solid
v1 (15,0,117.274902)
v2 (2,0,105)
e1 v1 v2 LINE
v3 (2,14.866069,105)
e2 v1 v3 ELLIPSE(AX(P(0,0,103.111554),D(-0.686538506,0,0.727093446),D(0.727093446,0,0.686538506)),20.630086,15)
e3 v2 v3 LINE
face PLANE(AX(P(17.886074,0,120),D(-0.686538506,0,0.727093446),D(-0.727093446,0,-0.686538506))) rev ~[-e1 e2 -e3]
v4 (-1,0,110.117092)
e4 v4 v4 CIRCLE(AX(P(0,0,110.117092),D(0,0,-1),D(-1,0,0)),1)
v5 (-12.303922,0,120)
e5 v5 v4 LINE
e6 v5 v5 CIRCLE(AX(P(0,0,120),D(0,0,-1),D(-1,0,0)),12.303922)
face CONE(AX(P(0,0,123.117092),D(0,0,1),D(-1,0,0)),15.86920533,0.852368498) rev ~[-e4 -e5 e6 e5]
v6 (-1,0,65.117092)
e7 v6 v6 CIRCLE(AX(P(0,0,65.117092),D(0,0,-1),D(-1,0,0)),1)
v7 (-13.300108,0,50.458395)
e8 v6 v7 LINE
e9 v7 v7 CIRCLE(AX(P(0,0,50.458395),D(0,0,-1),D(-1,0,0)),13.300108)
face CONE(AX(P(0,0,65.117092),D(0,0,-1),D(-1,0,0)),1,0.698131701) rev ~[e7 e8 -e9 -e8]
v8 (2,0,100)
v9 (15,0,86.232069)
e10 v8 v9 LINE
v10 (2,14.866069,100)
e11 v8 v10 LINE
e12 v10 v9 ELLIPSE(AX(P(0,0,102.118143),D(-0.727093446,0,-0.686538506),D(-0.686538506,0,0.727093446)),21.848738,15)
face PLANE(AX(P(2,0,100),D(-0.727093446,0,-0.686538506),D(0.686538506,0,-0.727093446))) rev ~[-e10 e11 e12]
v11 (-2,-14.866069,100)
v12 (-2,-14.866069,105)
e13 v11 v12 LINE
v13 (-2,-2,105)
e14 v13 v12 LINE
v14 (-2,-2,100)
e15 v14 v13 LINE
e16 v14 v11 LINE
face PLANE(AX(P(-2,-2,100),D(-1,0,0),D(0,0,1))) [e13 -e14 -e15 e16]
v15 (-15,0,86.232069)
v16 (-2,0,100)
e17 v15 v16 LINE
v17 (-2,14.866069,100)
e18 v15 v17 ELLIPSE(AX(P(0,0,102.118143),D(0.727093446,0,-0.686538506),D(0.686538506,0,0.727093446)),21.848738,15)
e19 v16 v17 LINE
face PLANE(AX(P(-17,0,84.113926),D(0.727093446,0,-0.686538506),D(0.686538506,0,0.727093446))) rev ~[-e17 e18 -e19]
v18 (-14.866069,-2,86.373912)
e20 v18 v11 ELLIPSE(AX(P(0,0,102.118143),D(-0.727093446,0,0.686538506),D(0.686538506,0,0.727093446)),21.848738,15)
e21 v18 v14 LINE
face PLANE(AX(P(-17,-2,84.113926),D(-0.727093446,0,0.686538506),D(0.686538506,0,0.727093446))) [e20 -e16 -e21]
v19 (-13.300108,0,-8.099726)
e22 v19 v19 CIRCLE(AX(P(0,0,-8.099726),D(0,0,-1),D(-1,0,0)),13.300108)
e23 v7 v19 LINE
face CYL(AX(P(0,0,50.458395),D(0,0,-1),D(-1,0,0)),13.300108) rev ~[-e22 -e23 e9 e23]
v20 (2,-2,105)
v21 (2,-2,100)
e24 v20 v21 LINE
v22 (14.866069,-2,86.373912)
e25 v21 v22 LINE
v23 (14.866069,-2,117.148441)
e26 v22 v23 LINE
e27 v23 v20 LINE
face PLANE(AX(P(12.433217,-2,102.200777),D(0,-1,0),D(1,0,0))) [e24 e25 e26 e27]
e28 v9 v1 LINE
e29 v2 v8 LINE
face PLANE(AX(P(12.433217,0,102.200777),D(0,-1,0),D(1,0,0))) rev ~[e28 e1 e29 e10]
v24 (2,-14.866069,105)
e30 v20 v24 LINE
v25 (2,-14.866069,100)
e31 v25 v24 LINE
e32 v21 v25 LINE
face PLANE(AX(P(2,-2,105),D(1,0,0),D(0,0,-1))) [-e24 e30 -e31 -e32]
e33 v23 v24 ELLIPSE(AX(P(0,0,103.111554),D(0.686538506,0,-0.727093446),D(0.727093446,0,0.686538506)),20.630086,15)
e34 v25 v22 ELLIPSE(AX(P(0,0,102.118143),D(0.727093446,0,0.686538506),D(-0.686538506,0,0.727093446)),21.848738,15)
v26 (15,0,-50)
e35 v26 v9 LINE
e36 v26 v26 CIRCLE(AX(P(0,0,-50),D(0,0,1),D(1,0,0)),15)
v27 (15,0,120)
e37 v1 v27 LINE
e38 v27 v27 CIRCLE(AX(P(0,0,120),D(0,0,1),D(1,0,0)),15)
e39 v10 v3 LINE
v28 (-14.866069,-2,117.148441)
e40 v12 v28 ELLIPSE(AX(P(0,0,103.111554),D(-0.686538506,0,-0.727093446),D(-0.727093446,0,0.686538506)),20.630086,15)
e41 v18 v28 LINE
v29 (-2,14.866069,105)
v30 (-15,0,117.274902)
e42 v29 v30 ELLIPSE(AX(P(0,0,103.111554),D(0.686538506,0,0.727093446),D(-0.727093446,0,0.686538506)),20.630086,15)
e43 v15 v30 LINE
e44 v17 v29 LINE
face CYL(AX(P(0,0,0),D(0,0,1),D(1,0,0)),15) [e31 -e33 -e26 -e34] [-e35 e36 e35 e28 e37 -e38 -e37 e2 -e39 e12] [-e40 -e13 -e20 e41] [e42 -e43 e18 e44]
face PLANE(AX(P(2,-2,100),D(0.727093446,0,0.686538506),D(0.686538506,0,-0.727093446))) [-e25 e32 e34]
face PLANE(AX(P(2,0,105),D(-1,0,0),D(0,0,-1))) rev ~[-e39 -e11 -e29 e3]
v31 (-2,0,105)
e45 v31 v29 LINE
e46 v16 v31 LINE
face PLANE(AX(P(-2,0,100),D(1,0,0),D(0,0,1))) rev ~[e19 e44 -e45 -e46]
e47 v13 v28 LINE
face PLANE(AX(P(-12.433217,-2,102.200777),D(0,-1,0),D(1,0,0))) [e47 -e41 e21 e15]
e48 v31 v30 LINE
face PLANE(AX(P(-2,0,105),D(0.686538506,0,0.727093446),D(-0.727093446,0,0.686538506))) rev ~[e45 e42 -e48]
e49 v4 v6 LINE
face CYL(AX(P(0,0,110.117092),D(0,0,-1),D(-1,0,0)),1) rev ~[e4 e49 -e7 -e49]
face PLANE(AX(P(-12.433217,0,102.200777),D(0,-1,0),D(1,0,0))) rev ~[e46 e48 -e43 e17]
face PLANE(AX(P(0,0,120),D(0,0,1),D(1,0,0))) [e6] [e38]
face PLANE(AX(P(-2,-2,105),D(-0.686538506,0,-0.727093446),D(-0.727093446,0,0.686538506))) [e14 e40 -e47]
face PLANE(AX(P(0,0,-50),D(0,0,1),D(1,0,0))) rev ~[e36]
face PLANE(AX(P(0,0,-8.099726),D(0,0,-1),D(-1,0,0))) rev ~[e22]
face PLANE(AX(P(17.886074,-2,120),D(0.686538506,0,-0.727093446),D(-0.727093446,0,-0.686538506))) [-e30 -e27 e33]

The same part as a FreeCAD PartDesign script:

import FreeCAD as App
import Part
import Sketcher

V = App.Vector
Q = App.Units.Quantity

doc = App.newDocument("Part")
body = doc.addObject("PartDesign::Body", "Body")

# Sketch on XY plane
sketch1 = body.newObject("Sketcher::SketchObject", "Sketch")
sketch1.AttachmentSupport = (doc.getObject("XY_Plane"), [""])
sketch1.MapMode = "FlatFace"
sketch1.addGeometry(Part.Circle(V(0, 0, 0), V(0, 0, 1), 15), False)
sketch1.addConstraint([
    Sketcher.Constraint("Coincident", 0, 3, -1, 1),
    Sketcher.Constraint("Diameter", 0, 30.0),
])
pad1 = body.newObject("PartDesign::Pad", "Pad")
pad1.Profile = sketch1
pad1.Type = "TwoLengths"
pad1.Length = 120
pad1.Length2 = 50

# Sketch on XZ plane
sketch2 = body.newObject("Sketcher::SketchObject", "Sketch001")
sketch2.AttachmentSupport = (doc.getObject("XZ_Plane"), [""])
sketch2.MapMode = "FlatFace"
sketch2.AttachmentOffset = App.Placement(V(0, 0, 2), App.Rotation())
sketch2.addGeometry([
    Part.LineSegment(V(-17.886074, 120, 0), V(-17, 105, 0)),  # 0
    Part.LineSegment(V(-17, 105, 0), V(-17, 84.113926, 0)),  # 1
    Part.LineSegment(V(-17, 84.113926, 0), V(-2, 100, 0)),  # 2
    Part.LineSegment(V(-2, 100, 0), V(-2, 105, 0)),  # 3
    Part.LineSegment(V(-2, 105, 0), V(-17.886074, 120, 0)),  # 4
    Part.LineSegment(V(-17, 70, 0), V(-17, 84.113926, 0)),  # 5
    Part.LineSegment(V(-17, 84.113926, 0), V(-17.886074, 83.17551, 0)),  # 6
    Part.LineSegment(V(-17.886074, 83.17551, 0), V(-17, 70, 0)),  # 7
    Part.LineSegment(V(2, 100, 0), V(17, 84.113926, 0)),  # 8
    Part.LineSegment(V(17, 84.113926, 0), V(17, 105, 0)),  # 9
    Part.LineSegment(V(17, 105, 0), V(17.886074, 120, 0)),  # 10
    Part.LineSegment(V(17.886074, 120, 0), V(2, 105, 0)),  # 11
    Part.LineSegment(V(2, 105, 0), V(2, 100, 0)),  # 12
    Part.LineSegment(V(17, 70, 0), V(17.886074, 83.17551, 0)),  # 13
    Part.LineSegment(V(17.886074, 83.17551, 0), V(17, 84.113926, 0)),  # 14
    Part.LineSegment(V(17, 84.113926, 0), V(17, 70, 0)),  # 15
], False)
sketch2.addConstraint([
    Sketcher.Constraint("Coincident", 0, 2, 1, 1),
    Sketcher.Constraint("Coincident", 1, 2, 2, 1),
    Sketcher.Constraint("Coincident", 2, 2, 3, 1),
    Sketcher.Constraint("Coincident", 3, 2, 4, 1),
    Sketcher.Constraint("Coincident", 4, 2, 0, 1),
    Sketcher.Constraint("Coincident", 5, 2, 6, 1),
    Sketcher.Constraint("Coincident", 6, 2, 7, 1),
    Sketcher.Constraint("Coincident", 7, 2, 5, 1),
    Sketcher.Constraint("Coincident", 8, 2, 9, 1),
    Sketcher.Constraint("Coincident", 9, 2, 10, 1),
    Sketcher.Constraint("Coincident", 10, 2, 11, 1),
    Sketcher.Constraint("Coincident", 11, 2, 12, 1),
    Sketcher.Constraint("Coincident", 12, 2, 8, 1),
    Sketcher.Constraint("Coincident", 13, 2, 14, 1),
    Sketcher.Constraint("Coincident", 14, 2, 15, 1),
    Sketcher.Constraint("Coincident", 15, 2, 13, 1),
    Sketcher.Constraint("Vertical", 1),
    Sketcher.Constraint("Vertical", 3),
    Sketcher.Constraint("Vertical", 5),
    Sketcher.Constraint("Vertical", 9),
    Sketcher.Constraint("Vertical", 12),
    Sketcher.Constraint("Vertical", 15),
    Sketcher.Constraint("Coincident", 5, 2, 1, 2),
    Sketcher.Constraint("Coincident", 14, 2, 8, 2),
    Sketcher.Constraint("Symmetric", 1, 2, 8, 2, -2),
    Sketcher.Constraint("Symmetric", 4, 2, 10, 2, -2),
    Sketcher.Constraint("Symmetric", 3, 2, 11, 2, -2),
    Sketcher.Constraint("Symmetric", 6, 2, 13, 2, -2),
    Sketcher.Constraint("Perpendicular", 2, 4),
    Sketcher.Constraint("Perpendicular", 4, 6),
    Sketcher.Constraint("Perpendicular", 8, 11),
    Sketcher.Constraint("Horizontal", 0, 2, 3, 2),
    Sketcher.Constraint("Horizontal", 3, 2, 9, 2),
    Sketcher.Constraint("Horizontal", 7, 2, 15, 2),
    Sketcher.Constraint("Vertical", 4, 2, 6, 2),
    Sketcher.Constraint("Equal", 2, 4),
    Sketcher.Constraint("DistanceY", 3, 1, 3, 2, 5.0),
    Sketcher.Constraint("DistanceX", 0, 2, -1, 1, 17.0),
    Sketcher.Constraint("DistanceY", -1, 1, 0, 2, 105.0),
    Sketcher.Constraint("DistanceX", 2, 2, -1, 1, 2.0),
    Sketcher.Constraint("DistanceY", -1, 1, 7, 2, 70.0),
    Sketcher.Constraint("Distance", 0, 15.026148),
])
pocket1 = body.newObject("PartDesign::Pocket", "Pocket")
pocket1.Profile = sketch2
pocket1.Length = 23
pocket1.Reversed = True

# Sketch on XZ plane
sketch3 = body.newObject("Sketcher::SketchObject", "Sketch002")
sketch3.AttachmentSupport = (doc.getObject("XZ_Plane"), [""])
sketch3.MapMode = "FlatFace"
sketch3.addGeometry([
    Part.LineSegment(V(-17.886074, 120, 0), V(-17, 105, 0)),  # 0
    Part.LineSegment(V(-17, 105, 0), V(-17, 84.113926, 0)),  # 1
    Part.LineSegment(V(-17, 84.113926, 0), V(-2, 100, 0)),  # 2
    Part.LineSegment(V(-2, 100, 0), V(-2, 105, 0)),  # 3
    Part.LineSegment(V(-2, 105, 0), V(-17.886074, 120, 0)),  # 4
    Part.LineSegment(V(-17, 70, 0), V(-17, 84.113926, 0)),  # 5
    Part.LineSegment(V(-17, 84.113926, 0), V(-17.886074, 83.17551, 0)),  # 6
    Part.LineSegment(V(-17.886074, 83.17551, 0), V(-17, 70, 0)),  # 7
    Part.LineSegment(V(2, 100, 0), V(17, 84.113926, 0)),  # 8
    Part.LineSegment(V(17, 84.113926, 0), V(17, 105, 0)),  # 9
    Part.LineSegment(V(17, 105, 0), V(17.886074, 120, 0)),  # 10
    Part.LineSegment(V(17.886074, 120, 0), V(2, 105, 0)),  # 11
    Part.LineSegment(V(2, 105, 0), V(2, 100, 0)),  # 12
    Part.LineSegment(V(17, 70, 0), V(17.886074, 83.17551, 0)),  # 13
    Part.LineSegment(V(17.886074, 83.17551, 0), V(17, 84.113926, 0)),  # 14
    Part.LineSegment(V(17, 84.113926, 0), V(17, 70, 0)),  # 15
], False)
sketch3.addConstraint([
    Sketcher.Constraint("Coincident", 0, 2, 1, 1),
    Sketcher.Constraint("Coincident", 1, 2, 2, 1),
    Sketcher.Constraint("Coincident", 2, 2, 3, 1),
    Sketcher.Constraint("Coincident", 3, 2, 4, 1),
    Sketcher.Constraint("Coincident", 4, 2, 0, 1),
    Sketcher.Constraint("Coincident", 5, 2, 6, 1),
    Sketcher.Constraint("Coincident", 6, 2, 7, 1),
    Sketcher.Constraint("Coincident", 7, 2, 5, 1),
    Sketcher.Constraint("Coincident", 8, 2, 9, 1),
    Sketcher.Constraint("Coincident", 9, 2, 10, 1),
    Sketcher.Constraint("Coincident", 10, 2, 11, 1),
    Sketcher.Constraint("Coincident", 11, 2, 12, 1),
    Sketcher.Constraint("Coincident", 12, 2, 8, 1),
    Sketcher.Constraint("Coincident", 13, 2, 14, 1),
    Sketcher.Constraint("Coincident", 14, 2, 15, 1),
    Sketcher.Constraint("Coincident", 15, 2, 13, 1),
    Sketcher.Constraint("Vertical", 1),
    Sketcher.Constraint("Vertical", 3),
    Sketcher.Constraint("Vertical", 5),
    Sketcher.Constraint("Vertical", 9),
    Sketcher.Constraint("Vertical", 12),
    Sketcher.Constraint("Vertical", 15),
    Sketcher.Constraint("Coincident", 5, 2, 1, 2),
    Sketcher.Constraint("Coincident", 14, 2, 8, 2),
    Sketcher.Constraint("Symmetric", 1, 2, 8, 2, -2),
    Sketcher.Constraint("Symmetric", 4, 2, 10, 2, -2),
    Sketcher.Constraint("Symmetric", 3, 2, 11, 2, -2),
    Sketcher.Constraint("Symmetric", 6, 2, 13, 2, -2),
    Sketcher.Constraint("Perpendicular", 2, 4),
    Sketcher.Constraint("Perpendicular", 4, 6),
    Sketcher.Constraint("Perpendicular", 8, 11),
    Sketcher.Constraint("Horizontal", 0, 2, 3, 2),
    Sketcher.Constraint("Horizontal", 3, 2, 9, 2),
    Sketcher.Constraint("Horizontal", 7, 2, 15, 2),
    Sketcher.Constraint("Vertical", 4, 2, 6, 2),
    Sketcher.Constraint("Equal", 2, 4),
    Sketcher.Constraint("DistanceY", 3, 1, 3, 2, 5.0),
    Sketcher.Constraint("DistanceX", 0, 2, -1, 1, 17.0),
    Sketcher.Constraint("DistanceY", -1, 1, 0, 2, 105.0),
    Sketcher.Constraint("DistanceX", 2, 2, -1, 1, 2.0),
    Sketcher.Constraint("DistanceY", -1, 1, 7, 2, 70.0),
    Sketcher.Constraint("Distance", 0, 15.026148),
])
pocket2 = body.newObject("PartDesign::Pocket", "Pocket001")
pocket2.Profile = sketch3
pocket2.Length = 25

# Sketch on XZ plane
sketch4 = body.newObject("Sketcher::SketchObject", "Sketch003")
sketch4.AttachmentSupport = (doc.getObject("XZ_Plane"), [""])
sketch4.MapMode = "FlatFace"
sketch4.addGeometry([
    Part.LineSegment(V(0, 123.117092, 0), V(-15.869205, 123.117092, 0)),  # 0
    Part.LineSegment(V(-15.869205, 123.117092, 0), V(-1, 110.117092, 0)),  # 1
    Part.LineSegment(V(-1, 110.117092, 0), V(-1, 65.117092, 0)),  # 2
    Part.LineSegment(V(-1, 65.117092, 0), V(-13.300108, 50.458395, 0)),  # 3
    Part.LineSegment(V(-13.300108, 50.458395, 0), V(-13.300108, -8.099726, 0)),  # 4
    Part.LineSegment(V(-13.300108, -8.099726, 0), V(0, -8.099726, 0)),  # 5
    Part.LineSegment(V(0, -8.099726, 0), V(0, 123.117092, 0)),  # 6
], False)
sketch4.addConstraint([
    Sketcher.Constraint("Coincident", 0, 2, 1, 1),
    Sketcher.Constraint("Coincident", 1, 2, 2, 1),
    Sketcher.Constraint("Coincident", 2, 2, 3, 1),
    Sketcher.Constraint("Coincident", 3, 2, 4, 1),
    Sketcher.Constraint("Coincident", 4, 2, 5, 1),
    Sketcher.Constraint("Coincident", 5, 2, 6, 1),
    Sketcher.Constraint("Coincident", 6, 2, 0, 1),
    Sketcher.Constraint("Horizontal", 0),
    Sketcher.Constraint("Vertical", 2),
    Sketcher.Constraint("Vertical", 4),
    Sketcher.Constraint("Horizontal", 5),
    Sketcher.Constraint("Vertical", 6),
    Sketcher.Constraint("PointOnObject", 5, 2, -2),
    Sketcher.Constraint("DistanceY", 2, 2, 2, 1, 45.0),
    Sketcher.Constraint("Angle", 3, Q("-130 deg")),
    Sketcher.Constraint("DistanceX", 1, 2, -1, 1, 1.0),
    Sketcher.Constraint("DistanceY", 1, 2, 0, 2, 13.0),
    Sketcher.Constraint("DistanceY", 4, 2, 4, 1, 58.558121),
    Sketcher.Constraint("DistanceY", 6, 1, 6, 2, 131.216819),
    Sketcher.Constraint("Distance", 1, 19.750779),
    Sketcher.Constraint("DistanceY", -1, 1, 0, 2, 123.117092),
])
groove = body.newObject("PartDesign::Groove", "Groove")
groove.Profile = sketch4
groove.ReferenceAxis = (sketch4, ["V_Axis"])
groove.Angle = 360

doc.recompute()
